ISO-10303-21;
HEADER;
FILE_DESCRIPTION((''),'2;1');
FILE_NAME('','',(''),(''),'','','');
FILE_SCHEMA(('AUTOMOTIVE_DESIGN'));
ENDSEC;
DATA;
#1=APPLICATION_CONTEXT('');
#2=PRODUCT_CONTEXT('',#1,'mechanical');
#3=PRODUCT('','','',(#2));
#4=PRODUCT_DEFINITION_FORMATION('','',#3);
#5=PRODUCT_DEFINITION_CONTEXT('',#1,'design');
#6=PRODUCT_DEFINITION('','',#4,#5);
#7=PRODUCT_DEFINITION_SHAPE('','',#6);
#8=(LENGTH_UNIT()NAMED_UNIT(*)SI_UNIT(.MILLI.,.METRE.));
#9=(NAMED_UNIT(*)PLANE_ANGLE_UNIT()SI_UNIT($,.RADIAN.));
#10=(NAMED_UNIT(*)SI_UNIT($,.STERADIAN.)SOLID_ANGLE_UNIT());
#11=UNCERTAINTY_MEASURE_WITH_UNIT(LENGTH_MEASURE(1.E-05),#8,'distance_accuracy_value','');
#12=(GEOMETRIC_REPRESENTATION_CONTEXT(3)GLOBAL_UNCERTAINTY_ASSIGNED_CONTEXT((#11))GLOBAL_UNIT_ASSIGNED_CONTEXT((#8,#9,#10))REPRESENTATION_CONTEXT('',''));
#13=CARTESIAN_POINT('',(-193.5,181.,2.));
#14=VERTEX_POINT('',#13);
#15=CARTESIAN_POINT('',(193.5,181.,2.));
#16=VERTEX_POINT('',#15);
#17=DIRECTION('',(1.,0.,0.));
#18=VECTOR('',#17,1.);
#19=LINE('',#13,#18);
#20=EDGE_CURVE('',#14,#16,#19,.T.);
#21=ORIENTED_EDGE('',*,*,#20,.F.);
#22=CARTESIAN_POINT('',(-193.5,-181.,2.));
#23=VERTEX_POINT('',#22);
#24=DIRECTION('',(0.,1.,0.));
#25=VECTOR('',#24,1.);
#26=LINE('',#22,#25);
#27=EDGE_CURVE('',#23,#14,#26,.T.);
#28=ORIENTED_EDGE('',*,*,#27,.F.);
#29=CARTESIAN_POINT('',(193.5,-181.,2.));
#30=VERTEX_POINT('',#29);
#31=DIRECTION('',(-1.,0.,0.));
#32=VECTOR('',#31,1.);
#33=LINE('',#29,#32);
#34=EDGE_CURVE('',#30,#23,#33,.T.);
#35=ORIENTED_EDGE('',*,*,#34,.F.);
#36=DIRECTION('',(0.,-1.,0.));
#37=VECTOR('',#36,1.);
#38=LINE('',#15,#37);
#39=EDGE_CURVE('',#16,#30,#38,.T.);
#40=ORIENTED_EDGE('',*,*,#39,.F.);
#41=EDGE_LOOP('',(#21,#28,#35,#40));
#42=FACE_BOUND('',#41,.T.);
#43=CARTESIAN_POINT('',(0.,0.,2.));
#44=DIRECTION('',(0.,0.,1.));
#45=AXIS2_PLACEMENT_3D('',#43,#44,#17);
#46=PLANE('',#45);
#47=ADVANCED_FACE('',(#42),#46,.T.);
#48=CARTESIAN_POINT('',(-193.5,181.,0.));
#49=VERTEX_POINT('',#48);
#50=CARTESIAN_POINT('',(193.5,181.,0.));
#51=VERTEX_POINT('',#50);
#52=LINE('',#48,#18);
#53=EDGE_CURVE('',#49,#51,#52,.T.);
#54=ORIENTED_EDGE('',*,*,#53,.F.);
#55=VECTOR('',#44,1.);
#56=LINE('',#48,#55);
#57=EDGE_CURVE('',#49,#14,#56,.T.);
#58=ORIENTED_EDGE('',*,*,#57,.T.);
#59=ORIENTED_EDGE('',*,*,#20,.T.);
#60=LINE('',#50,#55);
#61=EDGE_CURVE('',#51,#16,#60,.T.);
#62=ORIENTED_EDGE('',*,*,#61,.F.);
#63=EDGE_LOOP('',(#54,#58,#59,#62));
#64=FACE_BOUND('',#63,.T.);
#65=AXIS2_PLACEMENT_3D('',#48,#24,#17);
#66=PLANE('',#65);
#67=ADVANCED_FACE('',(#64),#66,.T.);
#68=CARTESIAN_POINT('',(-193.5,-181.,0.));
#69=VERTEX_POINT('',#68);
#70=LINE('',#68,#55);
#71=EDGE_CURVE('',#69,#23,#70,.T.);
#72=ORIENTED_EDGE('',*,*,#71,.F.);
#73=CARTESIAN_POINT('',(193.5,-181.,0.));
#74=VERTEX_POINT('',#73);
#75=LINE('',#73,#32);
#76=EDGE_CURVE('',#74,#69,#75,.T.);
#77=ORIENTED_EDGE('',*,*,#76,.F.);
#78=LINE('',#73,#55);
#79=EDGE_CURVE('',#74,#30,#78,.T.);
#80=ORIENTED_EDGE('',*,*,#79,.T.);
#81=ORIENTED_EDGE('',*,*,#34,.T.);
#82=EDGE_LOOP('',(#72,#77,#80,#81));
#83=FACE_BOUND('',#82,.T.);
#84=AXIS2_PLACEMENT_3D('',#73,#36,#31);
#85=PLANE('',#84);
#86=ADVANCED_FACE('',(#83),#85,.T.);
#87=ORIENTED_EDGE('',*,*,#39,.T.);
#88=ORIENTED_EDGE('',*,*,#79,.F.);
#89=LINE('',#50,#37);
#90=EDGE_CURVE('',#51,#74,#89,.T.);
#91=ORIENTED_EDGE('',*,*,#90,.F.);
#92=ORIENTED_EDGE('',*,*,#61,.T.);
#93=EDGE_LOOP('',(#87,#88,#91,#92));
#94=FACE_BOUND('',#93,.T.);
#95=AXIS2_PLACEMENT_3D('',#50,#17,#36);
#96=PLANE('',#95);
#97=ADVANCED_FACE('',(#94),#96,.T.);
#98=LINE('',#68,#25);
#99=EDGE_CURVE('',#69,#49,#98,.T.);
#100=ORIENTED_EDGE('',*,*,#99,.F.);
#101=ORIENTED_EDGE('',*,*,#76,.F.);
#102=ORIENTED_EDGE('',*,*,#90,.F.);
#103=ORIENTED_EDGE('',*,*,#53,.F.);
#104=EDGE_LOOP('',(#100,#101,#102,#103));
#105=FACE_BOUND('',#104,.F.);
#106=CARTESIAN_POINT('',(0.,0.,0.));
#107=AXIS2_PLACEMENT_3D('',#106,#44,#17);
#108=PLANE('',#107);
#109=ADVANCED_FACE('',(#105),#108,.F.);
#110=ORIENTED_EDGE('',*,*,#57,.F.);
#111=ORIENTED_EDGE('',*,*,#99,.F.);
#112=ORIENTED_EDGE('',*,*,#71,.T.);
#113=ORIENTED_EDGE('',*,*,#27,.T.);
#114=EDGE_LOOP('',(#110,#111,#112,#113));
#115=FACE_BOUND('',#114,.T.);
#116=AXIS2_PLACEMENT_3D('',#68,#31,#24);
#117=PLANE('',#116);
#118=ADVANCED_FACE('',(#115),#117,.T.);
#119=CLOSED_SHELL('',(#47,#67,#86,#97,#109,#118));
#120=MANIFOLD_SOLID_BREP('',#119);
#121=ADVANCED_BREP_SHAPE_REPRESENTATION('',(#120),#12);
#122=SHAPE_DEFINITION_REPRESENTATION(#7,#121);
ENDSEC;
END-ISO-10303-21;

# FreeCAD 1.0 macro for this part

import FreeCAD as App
import Part
import Sketcher
from FreeCAD import Vector

doc = App.newDocument("Part")
body = doc.addObject("PartDesign::Body", "Body")

sketch1 = body.newObject("Sketcher::SketchObject", "Sketch")
sketch1.AttachmentSupport = (doc.getObject("XY_Plane"), [""])
sketch1.MapMode = "FlatFace"
sketch1.addGeometry([
    Part.LineSegment(Vector(194, 181, 0), Vector(-194, 181, 0)),
    Part.LineSegment(Vector(-194, 181, 0), Vector(-194, -181, 0)),
    Part.LineSegment(Vector(-194, -181, 0), Vector(194, -181, 0)),
    Part.LineSegment(Vector(194, -181, 0), Vector(194, 181, 0)),
], False)
sketch1.addConstraint([
    Sketcher.Constraint("Coincident", 0, 2, 1, 1),
    Sketcher.Constraint("Coincident", 1, 2, 2, 1),
    Sketcher.Constraint("Coincident", 2, 2, 3, 1),
    Sketcher.Constraint("Coincident", 3, 2, 0, 1),
    Sketcher.Constraint("Horizontal", 0),
    Sketcher.Constraint("Vertical", 1),
    Sketcher.Constraint("Horizontal", 2),
    Sketcher.Constraint("Vertical", 3),
    Sketcher.Constraint("Symmetric", 0, 2, 2, 2, -1, 1),
    Sketcher.Constraint("DistanceX", 0, 2, 0, 1, 387.0),
    Sketcher.Constraint("DistanceY", 1, 2, 1, 1, 362.0),
])
pad1 = body.newObject("PartDesign::Pad", "Pad")
pad1.Profile = sketch1
pad1.Length = 2

doc.recompute()
